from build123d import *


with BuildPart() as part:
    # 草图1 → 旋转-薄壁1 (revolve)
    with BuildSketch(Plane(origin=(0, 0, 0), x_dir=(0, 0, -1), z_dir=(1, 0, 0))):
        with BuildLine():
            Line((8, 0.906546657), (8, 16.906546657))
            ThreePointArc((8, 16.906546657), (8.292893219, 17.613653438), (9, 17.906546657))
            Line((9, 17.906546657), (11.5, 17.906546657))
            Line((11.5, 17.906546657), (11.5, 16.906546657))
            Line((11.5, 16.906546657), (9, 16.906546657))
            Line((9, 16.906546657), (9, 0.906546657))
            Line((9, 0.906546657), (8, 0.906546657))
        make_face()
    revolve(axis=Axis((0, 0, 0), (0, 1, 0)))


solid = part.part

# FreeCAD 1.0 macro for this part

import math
import FreeCAD as App
import Part
import Sketcher
from FreeCAD import Vector
Q = App.Units.Quantity

doc = App.newDocument("Part")
body = doc.addObject("PartDesign::Body", "Body")

# Sketch on YZ plane
sketch1 = doc.addObject("Sketcher::SketchObject", "Sketch")
body.addObject(sketch1)
sketch1.AttachmentSupport = (doc.YZ_Plane, [""])
sketch1.MapMode = "FlatFace"
sketch1.addGeometry([
    Part.LineSegment(Vector(16.9, -8, 0), Vector(0.9, -8, 0)),  # 0
    Part.LineSegment(Vector(0.9, -8, 0), Vector(0.9, -9, 0)),  # 1
    Part.LineSegment(Vector(0.9, -9, 0), Vector(16.9, -9, 0)),  # 2
    Part.LineSegment(Vector(16.9, -9, 0), Vector(16.9, -11.5, 0)),  # 3
    Part.LineSegment(Vector(16.9, -11.5, 0), Vector(17.9, -11.5, 0)),  # 4
    Part.LineSegment(Vector(17.9, -11.5, 0), Vector(17.9, -9, 0)),  # 5
    Part.ArcOfCircle(Part.Circle(Vector(16.9, -9, 0), Vector(0, 0, 1), 1), math.radians(0), math.radians(90)),  # 6
], False)
sketch1.addConstraint([
    Sketcher.Constraint("Coincident", 0, 2, 1, 1),
    Sketcher.Constraint("Coincident", 1, 2, 2, 1),
    Sketcher.Constraint("Coincident", 2, 2, 3, 1),
    Sketcher.Constraint("Coincident", 3, 2, 4, 1),
    Sketcher.Constraint("Coincident", 4, 2, 5, 1),
    Sketcher.Constraint("Tangent", 5, 2, 6, 1),
    Sketcher.Constraint("Tangent", 6, 2, 0, 1),
    Sketcher.Constraint("Horizontal", 0),
    Sketcher.Constraint("Vertical", 1),
    Sketcher.Constraint("Horizontal", 2),
    Sketcher.Constraint("Vertical", 3),
    Sketcher.Constraint("Horizontal", 4),
    Sketcher.Constraint("Vertical", 5),
    Sketcher.Constraint("Coincident", 2, 2, 6, 3),
    Sketcher.Constraint("Radius", 6, Q("1 mm")),
    Sketcher.Constraint("DistanceX", 0, 2, 0, 1, Q("16 mm")),
    Sketcher.Constraint("DistanceY", 3, 2, 3, 1, Q("2.5 mm")),
    Sketcher.Constraint("DistanceY", 6, 3, -1, 1, Q("9 mm")),
    Sketcher.Constraint("DistanceX", -1, 1, 6, 3, Q("16.906547 mm")),
])
revolution = doc.addObject("PartDesign::Revolution", "Revolution")
body.addObject(revolution)
revolution.Profile = sketch1
revolution.ReferenceAxis = (sketch1, ["H_Axis"])
revolution.Angle = 360

doc.recompute()
